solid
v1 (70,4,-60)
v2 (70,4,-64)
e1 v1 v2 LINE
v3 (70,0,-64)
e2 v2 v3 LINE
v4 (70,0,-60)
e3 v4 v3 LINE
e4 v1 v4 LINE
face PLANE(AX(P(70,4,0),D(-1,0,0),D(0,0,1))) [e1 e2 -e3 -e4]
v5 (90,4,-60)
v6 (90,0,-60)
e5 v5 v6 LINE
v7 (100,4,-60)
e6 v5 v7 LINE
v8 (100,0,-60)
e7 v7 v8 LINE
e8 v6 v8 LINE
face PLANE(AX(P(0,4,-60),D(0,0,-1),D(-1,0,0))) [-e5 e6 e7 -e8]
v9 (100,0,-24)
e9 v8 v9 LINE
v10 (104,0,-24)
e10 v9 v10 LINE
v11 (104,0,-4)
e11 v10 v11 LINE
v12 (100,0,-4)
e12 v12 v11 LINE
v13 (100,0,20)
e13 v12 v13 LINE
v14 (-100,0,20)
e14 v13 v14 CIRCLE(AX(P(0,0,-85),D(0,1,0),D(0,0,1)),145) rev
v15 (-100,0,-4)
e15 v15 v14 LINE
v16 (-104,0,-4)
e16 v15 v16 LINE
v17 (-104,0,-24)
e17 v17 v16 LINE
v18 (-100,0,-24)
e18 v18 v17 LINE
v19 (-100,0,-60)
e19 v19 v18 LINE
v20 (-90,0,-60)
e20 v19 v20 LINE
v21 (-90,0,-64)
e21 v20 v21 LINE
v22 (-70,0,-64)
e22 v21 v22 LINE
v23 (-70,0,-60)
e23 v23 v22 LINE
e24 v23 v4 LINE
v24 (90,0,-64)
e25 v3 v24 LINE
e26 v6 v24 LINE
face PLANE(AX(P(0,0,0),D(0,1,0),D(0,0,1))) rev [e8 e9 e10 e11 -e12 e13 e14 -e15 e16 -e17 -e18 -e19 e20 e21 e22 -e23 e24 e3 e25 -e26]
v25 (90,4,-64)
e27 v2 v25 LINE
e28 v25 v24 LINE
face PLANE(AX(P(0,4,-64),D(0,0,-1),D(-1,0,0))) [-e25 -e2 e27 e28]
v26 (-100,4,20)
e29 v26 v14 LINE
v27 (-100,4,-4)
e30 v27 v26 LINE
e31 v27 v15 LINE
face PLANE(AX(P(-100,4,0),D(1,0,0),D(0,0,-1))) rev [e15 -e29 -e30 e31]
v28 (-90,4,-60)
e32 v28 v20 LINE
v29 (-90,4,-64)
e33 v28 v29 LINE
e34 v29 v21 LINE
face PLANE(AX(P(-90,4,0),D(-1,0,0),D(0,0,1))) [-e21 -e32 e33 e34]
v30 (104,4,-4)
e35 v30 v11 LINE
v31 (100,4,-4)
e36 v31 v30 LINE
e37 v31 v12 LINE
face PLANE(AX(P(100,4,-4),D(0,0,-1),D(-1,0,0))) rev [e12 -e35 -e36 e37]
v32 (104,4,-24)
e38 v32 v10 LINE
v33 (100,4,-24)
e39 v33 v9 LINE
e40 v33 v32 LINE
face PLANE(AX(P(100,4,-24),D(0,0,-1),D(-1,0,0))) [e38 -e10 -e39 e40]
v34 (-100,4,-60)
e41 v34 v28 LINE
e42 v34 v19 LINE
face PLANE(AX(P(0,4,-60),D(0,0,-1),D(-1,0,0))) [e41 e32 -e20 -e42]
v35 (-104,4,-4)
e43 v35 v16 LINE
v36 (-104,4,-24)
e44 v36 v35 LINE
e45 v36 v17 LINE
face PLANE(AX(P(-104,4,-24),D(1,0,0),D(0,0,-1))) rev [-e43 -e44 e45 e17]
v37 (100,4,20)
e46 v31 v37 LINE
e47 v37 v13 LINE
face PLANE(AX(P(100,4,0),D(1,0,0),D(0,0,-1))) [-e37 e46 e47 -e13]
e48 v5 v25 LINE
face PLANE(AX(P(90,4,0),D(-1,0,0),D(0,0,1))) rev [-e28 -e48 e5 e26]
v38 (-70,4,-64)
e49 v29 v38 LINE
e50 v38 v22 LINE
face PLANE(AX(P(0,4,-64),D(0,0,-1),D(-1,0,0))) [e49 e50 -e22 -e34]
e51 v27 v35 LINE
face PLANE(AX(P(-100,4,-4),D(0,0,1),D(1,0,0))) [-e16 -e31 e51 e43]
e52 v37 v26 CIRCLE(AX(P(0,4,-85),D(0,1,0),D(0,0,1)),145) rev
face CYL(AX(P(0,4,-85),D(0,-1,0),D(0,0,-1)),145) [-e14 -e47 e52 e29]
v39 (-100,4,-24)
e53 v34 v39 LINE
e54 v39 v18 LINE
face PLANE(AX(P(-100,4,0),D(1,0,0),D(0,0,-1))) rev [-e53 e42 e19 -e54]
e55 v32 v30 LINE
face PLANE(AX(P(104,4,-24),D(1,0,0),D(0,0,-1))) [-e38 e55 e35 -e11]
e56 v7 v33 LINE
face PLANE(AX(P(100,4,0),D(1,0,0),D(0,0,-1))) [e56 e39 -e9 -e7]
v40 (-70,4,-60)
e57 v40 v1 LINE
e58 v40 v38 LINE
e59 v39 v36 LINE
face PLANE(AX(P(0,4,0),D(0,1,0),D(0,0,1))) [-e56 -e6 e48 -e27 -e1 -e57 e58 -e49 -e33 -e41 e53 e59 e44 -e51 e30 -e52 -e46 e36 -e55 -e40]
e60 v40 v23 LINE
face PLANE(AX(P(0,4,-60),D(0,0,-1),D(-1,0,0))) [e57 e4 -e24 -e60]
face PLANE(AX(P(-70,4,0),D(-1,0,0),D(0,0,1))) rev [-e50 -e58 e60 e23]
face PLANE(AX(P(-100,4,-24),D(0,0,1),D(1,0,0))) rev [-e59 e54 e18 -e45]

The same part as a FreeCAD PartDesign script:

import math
import FreeCAD as App
import Part
import Sketcher

doc = App.newDocument("Part")
body = doc.addObject("PartDesign::Body", "Body")

# Sketch on XZ plane
sketch1 = doc.addObject("Sketcher::SketchObject", "Sketch")
body.addObject(sketch1)
sketch1.AttachmentSupport = (doc.XZ_Plane, [""])
sketch1.MapMode = "FlatFace"
sketch1.addGeometry(Part.LineSegment(App.Vector(-90, -60, 0), App.Vector(-100, -60, 0)), False)
sketch1.addGeometry(Part.LineSegment(App.Vector(-100, -60, 0), App.Vector(-100, -24, 0)), False)
sketch1.addGeometry(Part.LineSegment(App.Vector(-100, -24, 0), App.Vector(-104, -24, 0)), False)
sketch1.addGeometry(Part.LineSegment(App.Vector(-104, -24, 0), App.Vector(-104, -4, 0)), False)
sketch1.addGeometry(Part.LineSegment(App.Vector(-104, -4, 0), App.Vector(-100, -4, 0)), False)
sketch1.addGeometry(Part.LineSegment(App.Vector(-100, -4, 0), App.Vector(-100, 20, 0)), False)
sketch1.addGeometry(Part.ArcOfCircle(Part.Circle(App.Vector(0, -85, 0), App.Vector(0, 0, 1), 145), math.radians(46), math.radians(134)), False)
sketch1.addGeometry(Part.LineSegment(App.Vector(100, 20, 0), App.Vector(100, -4, 0)), False)
sketch1.addGeometry(Part.LineSegment(App.Vector(100, -4, 0), App.Vector(104, -4, 0)), False)
sketch1.addGeometry(Part.LineSegment(App.Vector(104, -4, 0), App.Vector(104, -24, 0)), False)
sketch1.addGeometry(Part.LineSegment(App.Vector(104, -24, 0), App.Vector(100, -24, 0)), False)
sketch1.addGeometry(Part.LineSegment(App.Vector(100, -24, 0), App.Vector(100, -60, 0)), False)
sketch1.addGeometry(Part.LineSegment(App.Vector(100, -60, 0), App.Vector(90, -60, 0)), False)
sketch1.addGeometry(Part.LineSegment(App.Vector(90, -60, 0), App.Vector(90, -64, 0)), False)
sketch1.addGeometry(Part.LineSegment(App.Vector(90, -64, 0), App.Vector(70, -64, 0)), False)
sketch1.addGeometry(Part.LineSegment(App.Vector(70, -64, 0), App.Vector(70, -60, 0)), False)
sketch1.addGeometry(Part.LineSegment(App.Vector(70, -60, 0), App.Vector(-70, -60, 0)), False)
sketch1.addGeometry(Part.LineSegment(App.Vector(-70, -60, 0), App.Vector(-70, -64, 0)), False)
sketch1.addGeometry(Part.LineSegment(App.Vector(-70, -64, 0), App.Vector(-90, -64, 0)), False)
sketch1.addGeometry(Part.LineSegment(App.Vector(-90, -64, 0), App.Vector(-90, -60, 0)), False)
sketch1.addConstraint(Sketcher.Constraint("Coincident", 0, 2, 1, 1))
sketch1.addConstraint(Sketcher.Constraint("Coincident", 1, 2, 2, 1))
sketch1.addConstraint(Sketcher.Constraint("Coincident", 2, 2, 3, 1))
sketch1.addConstraint(Sketcher.Constraint("Coincident", 3, 2, 4, 1))
sketch1.addConstraint(Sketcher.Constraint("Coincident", 4, 2, 5, 1))
sketch1.addConstraint(Sketcher.Constraint("Coincident", 5, 2, 6, 2))
sketch1.addConstraint(Sketcher.Constraint("Coincident", 6, 1, 7, 1))
sketch1.addConstraint(Sketcher.Constraint("Coincident", 7, 2, 8, 1))
sketch1.addConstraint(Sketcher.Constraint("Coincident", 8, 2, 9, 1))
sketch1.addConstraint(Sketcher.Constraint("Coincident", 9, 2, 10, 1))
sketch1.addConstraint(Sketcher.Constraint("Coincident", 10, 2, 11, 1))
sketch1.addConstraint(Sketcher.Constraint("Coincident", 11, 2, 12, 1))
sketch1.addConstraint(Sketcher.Constraint("Coincident", 12, 2, 13, 1))
sketch1.addConstraint(Sketcher.Constraint("Coincident", 13, 2, 14, 1))
sketch1.addConstraint(Sketcher.Constraint("Coincident", 14, 2, 15, 1))
sketch1.addConstraint(Sketcher.Constraint("Coincident", 15, 2, 16, 1))
sketch1.addConstraint(Sketcher.Constraint("Coincident", 16, 2, 17, 1))
sketch1.addConstraint(Sketcher.Constraint("Coincident", 17, 2, 18, 1))
sketch1.addConstraint(Sketcher.Constraint("Coincident", 18, 2, 19, 1))
sketch1.addConstraint(Sketcher.Constraint("Coincident", 19, 2, 0, 1))
sketch1.addConstraint(Sketcher.Constraint("Horizontal", 0))
sketch1.addConstraint(Sketcher.Constraint("Vertical", 1))
sketch1.addConstraint(Sketcher.Constraint("Horizontal", 2))
sketch1.addConstraint(Sketcher.Constraint("Vertical", 3))
sketch1.addConstraint(Sketcher.Constraint("Horizontal", 4))
sketch1.addConstraint(Sketcher.Constraint("Vertical", 5))
sketch1.addConstraint(Sketcher.Constraint("Vertical", 7))
sketch1.addConstraint(Sketcher.Constraint("Horizontal", 8))
sketch1.addConstraint(Sketcher.Constraint("Vertical", 9))
sketch1.addConstraint(Sketcher.Constraint("Horizontal", 10))
sketch1.addConstraint(Sketcher.Constraint("Vertical", 11))
sketch1.addConstraint(Sketcher.Constraint("Horizontal", 12))
sketch1.addConstraint(Sketcher.Constraint("Vertical", 13))
sketch1.addConstraint(Sketcher.Constraint("Horizontal", 14))
sketch1.addConstraint(Sketcher.Constraint("Vertical", 15))
sketch1.addConstraint(Sketcher.Constraint("Horizontal", 16))
sketch1.addConstraint(Sketcher.Constraint("Vertical", 17))
sketch1.addConstraint(Sketcher.Constraint("Horizontal", 18))
sketch1.addConstraint(Sketcher.Constraint("Vertical", 19))
sketch1.addConstraint(Sketcher.Constraint("Symmetric", 5, 2, 6, 1, -2))
sketch1.addConstraint(Sketcher.Constraint("Symmetric", 3, 2, 8, 2, -2))
sketch1.addConstraint(Sketcher.Constraint("Symmetric", 1, 2, 10, 2, -2))
sketch1.addConstraint(Sketcher.Constraint("Symmetric", 14, 2, 17, 2, -2))
sketch1.addConstraint(Sketcher.Constraint("Symmetric", 12, 2, 19, 2, -2))
sketch1.addConstraint(Sketcher.Constraint("Horizontal", 12, 2, 15, 2))
sketch1.addConstraint(Sketcher.Constraint("Vertical", 1, 2, 4, 2))
sketch1.addConstraint(Sketcher.Constraint("Equal", 18, 3))
sketch1.addConstraint(Sketcher.Constraint("Equal", 10, 13))
sketch1.addConstraint(Sketcher.Constraint("Radius", 6, 145.0))
sketch1.addConstraint(Sketcher.Constraint("DistanceX", 0, 2, 0, 1, 10.0))
sketch1.addConstraint(Sketcher.Constraint("DistanceX", 2, 2, 2, 1, 4.0))
sketch1.addConstraint(Sketcher.Constraint("DistanceX", 14, 2, 14, 1, 20.0))
sketch1.addConstraint(Sketcher.Constraint("DistanceX", 16, 2, 16, 1, 140.0))
sketch1.addConstraint(Sketcher.Constraint("DistanceY", 1, 1, 1, 2, 36.0))
sketch1.addConstraint(Sketcher.Constraint("DistanceY", 5, 1, 5, 2, 24.0))
sketch1.addConstraint(Sketcher.Constraint("DistanceY", 6, 3, -1, 1, 85.0))
pad1 = doc.addObject("PartDesign::Pad", "Pad")
body.addObject(pad1)
pad1.Profile = sketch1
pad1.Length = 4
pad1.Reversed = True

doc.recompute()
